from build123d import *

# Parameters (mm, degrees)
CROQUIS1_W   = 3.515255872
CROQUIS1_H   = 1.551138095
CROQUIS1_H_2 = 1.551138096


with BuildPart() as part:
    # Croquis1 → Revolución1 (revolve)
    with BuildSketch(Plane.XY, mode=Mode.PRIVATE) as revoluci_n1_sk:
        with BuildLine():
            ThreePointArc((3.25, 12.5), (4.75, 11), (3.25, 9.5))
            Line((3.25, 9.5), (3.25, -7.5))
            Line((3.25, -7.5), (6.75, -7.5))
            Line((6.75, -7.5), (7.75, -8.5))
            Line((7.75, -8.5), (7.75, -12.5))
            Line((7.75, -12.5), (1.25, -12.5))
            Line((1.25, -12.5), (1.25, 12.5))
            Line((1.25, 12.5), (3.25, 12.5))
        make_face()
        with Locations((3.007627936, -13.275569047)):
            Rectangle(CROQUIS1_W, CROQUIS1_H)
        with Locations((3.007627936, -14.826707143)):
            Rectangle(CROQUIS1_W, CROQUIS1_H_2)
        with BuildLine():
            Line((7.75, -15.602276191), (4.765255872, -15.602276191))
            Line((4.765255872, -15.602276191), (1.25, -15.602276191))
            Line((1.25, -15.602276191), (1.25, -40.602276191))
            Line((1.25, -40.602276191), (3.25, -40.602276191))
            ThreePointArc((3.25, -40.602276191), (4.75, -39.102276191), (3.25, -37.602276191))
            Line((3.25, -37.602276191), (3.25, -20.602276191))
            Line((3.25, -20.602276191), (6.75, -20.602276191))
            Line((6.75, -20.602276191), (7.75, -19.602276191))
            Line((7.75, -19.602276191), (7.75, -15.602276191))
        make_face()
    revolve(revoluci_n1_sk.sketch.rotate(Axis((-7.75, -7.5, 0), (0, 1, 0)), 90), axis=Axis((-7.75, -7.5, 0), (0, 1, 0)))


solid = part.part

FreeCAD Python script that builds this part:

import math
import FreeCAD as App
import Part
import Sketcher
from FreeCAD import Vector

doc = App.newDocument("Part")
body = doc.addObject("PartDesign::Body", "Body")

sketch1 = doc.addObject("Sketcher::SketchObject", "Sketch")
body.addObject(sketch1)
sketch1.AttachmentSupport = (doc.XY_Plane, [""])
sketch1.MapMode = "FlatFace"
sketch1.addGeometry(Part.ArcOfCircle(Part.Circle(Vector(3.2, 11, 0), Vector(0, 0, 1), 1.5), math.radians(-90), math.radians(90)), False)
sketch1.addGeometry(Part.LineSegment(Vector(3.2, 12.5, 0), Vector(1.2, 12.5, 0)), False)
sketch1.addGeometry(Part.LineSegment(Vector(1.2, 12.5, 0), Vector(1.2, -40.6, 0)), False)
sketch1.addGeometry(Part.LineSegment(Vector(1.2, -40.6, 0), Vector(3.2, -40.6, 0)), False)
sketch1.addGeometry(Part.ArcOfCircle(Part.Circle(Vector(3.2, -39.1, 0), Vector(0, 0, 1), 1.5), math.radians(-90), math.radians(90)), False)
sketch1.addGeometry(Part.LineSegment(Vector(3.2, -37.6, 0), Vector(3.2, -20.6, 0)), False)
sketch1.addGeometry(Part.LineSegment(Vector(3.2, -20.6, 0), Vector(6.8, -20.6, 0)), False)
sketch1.addGeometry(Part.LineSegment(Vector(6.8, -20.6, 0), Vector(7.8, -19.6, 0)), False)
sketch1.addGeometry(Part.LineSegment(Vector(7.8, -19.6, 0), Vector(7.8, -15.6, 0)), False)
sketch1.addGeometry(Part.LineSegment(Vector(7.8, -15.6, 0), Vector(4.8, -15.6, 0)), False)
sketch1.addGeometry(Part.LineSegment(Vector(4.8, -15.6, 0), Vector(4.8, -12.5, 0)), False)
sketch1.addGeometry(Part.LineSegment(Vector(4.8, -12.5, 0), Vector(7.8, -12.5, 0)), False)
sketch1.addGeometry(Part.LineSegment(Vector(7.8, -12.5, 0), Vector(7.8, -8.5, 0)), False)
sketch1.addGeometry(Part.LineSegment(Vector(7.8, -8.5, 0), Vector(6.8, -7.5, 0)), False)
sketch1.addGeometry(Part.LineSegment(Vector(6.8, -7.5, 0), Vector(3.2, -7.5, 0)), False)
sketch1.addGeometry(Part.LineSegment(Vector(3.2, -7.5, 0), Vector(3.2, 9.5, 0)), False)
sketch1.addGeometry(Part.LineSegment(Vector(-7.8, -40.6, 0), Vector(-7.8, 12.5, 0)), True)
sketch1.addConstraint(Sketcher.Constraint("Tangent", 0, 2, 1, 1))
sketch1.addConstraint(Sketcher.Constraint("Coincident", 1, 2, 2, 1))
sketch1.addConstraint(Sketcher.Constraint("Coincident", 2, 2, 3, 1))
sketch1.addConstraint(Sketcher.Constraint("Tangent", 3, 2, 4, 1))
sketch1.addConstraint(Sketcher.Constraint("Coincident", 4, 2, 5, 1))
sketch1.addConstraint(Sketcher.Constraint("Coincident", 5, 2, 6, 1))
sketch1.addConstraint(Sketcher.Constraint("Coincident", 6, 2, 7, 1))
sketch1.addConstraint(Sketcher.Constraint("Coincident", 7, 2, 8, 1))
sketch1.addConstraint(Sketcher.Constraint("Coincident", 8, 2, 9, 1))
sketch1.addConstraint(Sketcher.Constraint("Coincident", 9, 2, 10, 1))
sketch1.addConstraint(Sketcher.Constraint("Coincident", 10, 2, 11, 1))
sketch1.addConstraint(Sketcher.Constraint("Coincident", 11, 2, 12, 1))
sketch1.addConstraint(Sketcher.Constraint("Coincident", 12, 2, 13, 1))
sketch1.addConstraint(Sketcher.Constraint("Coincident", 13, 2, 14, 1))
sketch1.addConstraint(Sketcher.Constraint("Coincident", 14, 2, 15, 1))
sketch1.addConstraint(Sketcher.Constraint("Coincident", 15, 2, 0, 1))
sketch1.addConstraint(Sketcher.Constraint("Horizontal", 1))
sketch1.addConstraint(Sketcher.Constraint("Vertical", 2))
sketch1.addConstraint(Sketcher.Constraint("Horizontal", 3))
sketch1.addConstraint(Sketcher.Constraint("Vertical", 5))
sketch1.addConstraint(Sketcher.Constraint("Horizontal", 6))
sketch1.addConstraint(Sketcher.Constraint("Vertical", 8))
sketch1.addConstraint(Sketcher.Constraint("Horizontal", 9))
sketch1.addConstraint(Sketcher.Constraint("Vertical", 10))
sketch1.addConstraint(Sketcher.Constraint("Horizontal", 11))
sketch1.addConstraint(Sketcher.Constraint("Vertical", 12))
sketch1.addConstraint(Sketcher.Constraint("Horizontal", 14))
sketch1.addConstraint(Sketcher.Constraint("Vertical", 15))
sketch1.addConstraint(Sketcher.Constraint("Vertical", 16))
sketch1.addConstraint(Sketcher.Constraint("Equal", 0, 4))
sketch1.addConstraint(Sketcher.Constraint("Symmetric", 11, 2, 16, 2, -1, 1))
sketch1.addConstraint(Sketcher.Constraint("Perpendicular", 7, 13))
sketch1.addConstraint(Sketcher.Constraint("Horizontal", 3, 2, 16, 1))
sketch1.addConstraint(Sketcher.Constraint("Horizontal", 1, 2, 16, 2))
sketch1.addConstraint(Sketcher.Constraint("Vertical", 0, 3, 4, 3))
sketch1.addConstraint(Sketcher.Constraint("Vertical", 3, 2, 4, 2))
sketch1.addConstraint(Sketcher.Constraint("Vertical", 8, 2, 11, 2))
sketch1.addConstraint(Sketcher.Constraint("Vertical", 6, 2, 13, 2))
sketch1.addConstraint(Sketcher.Constraint("Vertical", 5, 2, 14, 2))
sketch1.addConstraint(Sketcher.Constraint("Equal", 8, 12))
sketch1.addConstraint(Sketcher.Constraint("Equal", 5, 15))
sketch1.addConstraint(Sketcher.Constraint("Equal", 7, 13))
sketch1.addConstraint(Sketcher.Constraint("Radius", 0, 1.5))
sketch1.addConstraint(Sketcher.Constraint("DistanceX", 1, 2, 1, 1, 2.0))
sketch1.addConstraint(Sketcher.Constraint("DistanceY", 5, 1, 5, 2, 17.0))
sketch1.addConstraint(Sketcher.Constraint("DistanceY", 8, 1, 8, 2, 4.0))
sketch1.addConstraint(Sketcher.Constraint("DistanceX", 6, 1, 6, 2, 3.5))
sketch1.addConstraint(Sketcher.Constraint("DistanceY", -1, 1, 0, 3, 11.0))
sketch1.addConstraint(Sketcher.Constraint("DistanceX", 16, 1, 2, 2, 9.0))
sketch1.addConstraint(Sketcher.Constraint("DistanceX", 9, 2, 9, 1, 2.984744))
sketch1.addConstraint(Sketcher.Constraint("DistanceY", 2, 2, 2, 1, 53.102276))
revolution = doc.addObject("PartDesign::Revolution", "Revolution")
body.addObject(revolution)
revolution.Profile = sketch1
revolution.ReferenceAxis = (sketch1, ["Axis0"])
revolution.Angle = 360

doc.recompute()
